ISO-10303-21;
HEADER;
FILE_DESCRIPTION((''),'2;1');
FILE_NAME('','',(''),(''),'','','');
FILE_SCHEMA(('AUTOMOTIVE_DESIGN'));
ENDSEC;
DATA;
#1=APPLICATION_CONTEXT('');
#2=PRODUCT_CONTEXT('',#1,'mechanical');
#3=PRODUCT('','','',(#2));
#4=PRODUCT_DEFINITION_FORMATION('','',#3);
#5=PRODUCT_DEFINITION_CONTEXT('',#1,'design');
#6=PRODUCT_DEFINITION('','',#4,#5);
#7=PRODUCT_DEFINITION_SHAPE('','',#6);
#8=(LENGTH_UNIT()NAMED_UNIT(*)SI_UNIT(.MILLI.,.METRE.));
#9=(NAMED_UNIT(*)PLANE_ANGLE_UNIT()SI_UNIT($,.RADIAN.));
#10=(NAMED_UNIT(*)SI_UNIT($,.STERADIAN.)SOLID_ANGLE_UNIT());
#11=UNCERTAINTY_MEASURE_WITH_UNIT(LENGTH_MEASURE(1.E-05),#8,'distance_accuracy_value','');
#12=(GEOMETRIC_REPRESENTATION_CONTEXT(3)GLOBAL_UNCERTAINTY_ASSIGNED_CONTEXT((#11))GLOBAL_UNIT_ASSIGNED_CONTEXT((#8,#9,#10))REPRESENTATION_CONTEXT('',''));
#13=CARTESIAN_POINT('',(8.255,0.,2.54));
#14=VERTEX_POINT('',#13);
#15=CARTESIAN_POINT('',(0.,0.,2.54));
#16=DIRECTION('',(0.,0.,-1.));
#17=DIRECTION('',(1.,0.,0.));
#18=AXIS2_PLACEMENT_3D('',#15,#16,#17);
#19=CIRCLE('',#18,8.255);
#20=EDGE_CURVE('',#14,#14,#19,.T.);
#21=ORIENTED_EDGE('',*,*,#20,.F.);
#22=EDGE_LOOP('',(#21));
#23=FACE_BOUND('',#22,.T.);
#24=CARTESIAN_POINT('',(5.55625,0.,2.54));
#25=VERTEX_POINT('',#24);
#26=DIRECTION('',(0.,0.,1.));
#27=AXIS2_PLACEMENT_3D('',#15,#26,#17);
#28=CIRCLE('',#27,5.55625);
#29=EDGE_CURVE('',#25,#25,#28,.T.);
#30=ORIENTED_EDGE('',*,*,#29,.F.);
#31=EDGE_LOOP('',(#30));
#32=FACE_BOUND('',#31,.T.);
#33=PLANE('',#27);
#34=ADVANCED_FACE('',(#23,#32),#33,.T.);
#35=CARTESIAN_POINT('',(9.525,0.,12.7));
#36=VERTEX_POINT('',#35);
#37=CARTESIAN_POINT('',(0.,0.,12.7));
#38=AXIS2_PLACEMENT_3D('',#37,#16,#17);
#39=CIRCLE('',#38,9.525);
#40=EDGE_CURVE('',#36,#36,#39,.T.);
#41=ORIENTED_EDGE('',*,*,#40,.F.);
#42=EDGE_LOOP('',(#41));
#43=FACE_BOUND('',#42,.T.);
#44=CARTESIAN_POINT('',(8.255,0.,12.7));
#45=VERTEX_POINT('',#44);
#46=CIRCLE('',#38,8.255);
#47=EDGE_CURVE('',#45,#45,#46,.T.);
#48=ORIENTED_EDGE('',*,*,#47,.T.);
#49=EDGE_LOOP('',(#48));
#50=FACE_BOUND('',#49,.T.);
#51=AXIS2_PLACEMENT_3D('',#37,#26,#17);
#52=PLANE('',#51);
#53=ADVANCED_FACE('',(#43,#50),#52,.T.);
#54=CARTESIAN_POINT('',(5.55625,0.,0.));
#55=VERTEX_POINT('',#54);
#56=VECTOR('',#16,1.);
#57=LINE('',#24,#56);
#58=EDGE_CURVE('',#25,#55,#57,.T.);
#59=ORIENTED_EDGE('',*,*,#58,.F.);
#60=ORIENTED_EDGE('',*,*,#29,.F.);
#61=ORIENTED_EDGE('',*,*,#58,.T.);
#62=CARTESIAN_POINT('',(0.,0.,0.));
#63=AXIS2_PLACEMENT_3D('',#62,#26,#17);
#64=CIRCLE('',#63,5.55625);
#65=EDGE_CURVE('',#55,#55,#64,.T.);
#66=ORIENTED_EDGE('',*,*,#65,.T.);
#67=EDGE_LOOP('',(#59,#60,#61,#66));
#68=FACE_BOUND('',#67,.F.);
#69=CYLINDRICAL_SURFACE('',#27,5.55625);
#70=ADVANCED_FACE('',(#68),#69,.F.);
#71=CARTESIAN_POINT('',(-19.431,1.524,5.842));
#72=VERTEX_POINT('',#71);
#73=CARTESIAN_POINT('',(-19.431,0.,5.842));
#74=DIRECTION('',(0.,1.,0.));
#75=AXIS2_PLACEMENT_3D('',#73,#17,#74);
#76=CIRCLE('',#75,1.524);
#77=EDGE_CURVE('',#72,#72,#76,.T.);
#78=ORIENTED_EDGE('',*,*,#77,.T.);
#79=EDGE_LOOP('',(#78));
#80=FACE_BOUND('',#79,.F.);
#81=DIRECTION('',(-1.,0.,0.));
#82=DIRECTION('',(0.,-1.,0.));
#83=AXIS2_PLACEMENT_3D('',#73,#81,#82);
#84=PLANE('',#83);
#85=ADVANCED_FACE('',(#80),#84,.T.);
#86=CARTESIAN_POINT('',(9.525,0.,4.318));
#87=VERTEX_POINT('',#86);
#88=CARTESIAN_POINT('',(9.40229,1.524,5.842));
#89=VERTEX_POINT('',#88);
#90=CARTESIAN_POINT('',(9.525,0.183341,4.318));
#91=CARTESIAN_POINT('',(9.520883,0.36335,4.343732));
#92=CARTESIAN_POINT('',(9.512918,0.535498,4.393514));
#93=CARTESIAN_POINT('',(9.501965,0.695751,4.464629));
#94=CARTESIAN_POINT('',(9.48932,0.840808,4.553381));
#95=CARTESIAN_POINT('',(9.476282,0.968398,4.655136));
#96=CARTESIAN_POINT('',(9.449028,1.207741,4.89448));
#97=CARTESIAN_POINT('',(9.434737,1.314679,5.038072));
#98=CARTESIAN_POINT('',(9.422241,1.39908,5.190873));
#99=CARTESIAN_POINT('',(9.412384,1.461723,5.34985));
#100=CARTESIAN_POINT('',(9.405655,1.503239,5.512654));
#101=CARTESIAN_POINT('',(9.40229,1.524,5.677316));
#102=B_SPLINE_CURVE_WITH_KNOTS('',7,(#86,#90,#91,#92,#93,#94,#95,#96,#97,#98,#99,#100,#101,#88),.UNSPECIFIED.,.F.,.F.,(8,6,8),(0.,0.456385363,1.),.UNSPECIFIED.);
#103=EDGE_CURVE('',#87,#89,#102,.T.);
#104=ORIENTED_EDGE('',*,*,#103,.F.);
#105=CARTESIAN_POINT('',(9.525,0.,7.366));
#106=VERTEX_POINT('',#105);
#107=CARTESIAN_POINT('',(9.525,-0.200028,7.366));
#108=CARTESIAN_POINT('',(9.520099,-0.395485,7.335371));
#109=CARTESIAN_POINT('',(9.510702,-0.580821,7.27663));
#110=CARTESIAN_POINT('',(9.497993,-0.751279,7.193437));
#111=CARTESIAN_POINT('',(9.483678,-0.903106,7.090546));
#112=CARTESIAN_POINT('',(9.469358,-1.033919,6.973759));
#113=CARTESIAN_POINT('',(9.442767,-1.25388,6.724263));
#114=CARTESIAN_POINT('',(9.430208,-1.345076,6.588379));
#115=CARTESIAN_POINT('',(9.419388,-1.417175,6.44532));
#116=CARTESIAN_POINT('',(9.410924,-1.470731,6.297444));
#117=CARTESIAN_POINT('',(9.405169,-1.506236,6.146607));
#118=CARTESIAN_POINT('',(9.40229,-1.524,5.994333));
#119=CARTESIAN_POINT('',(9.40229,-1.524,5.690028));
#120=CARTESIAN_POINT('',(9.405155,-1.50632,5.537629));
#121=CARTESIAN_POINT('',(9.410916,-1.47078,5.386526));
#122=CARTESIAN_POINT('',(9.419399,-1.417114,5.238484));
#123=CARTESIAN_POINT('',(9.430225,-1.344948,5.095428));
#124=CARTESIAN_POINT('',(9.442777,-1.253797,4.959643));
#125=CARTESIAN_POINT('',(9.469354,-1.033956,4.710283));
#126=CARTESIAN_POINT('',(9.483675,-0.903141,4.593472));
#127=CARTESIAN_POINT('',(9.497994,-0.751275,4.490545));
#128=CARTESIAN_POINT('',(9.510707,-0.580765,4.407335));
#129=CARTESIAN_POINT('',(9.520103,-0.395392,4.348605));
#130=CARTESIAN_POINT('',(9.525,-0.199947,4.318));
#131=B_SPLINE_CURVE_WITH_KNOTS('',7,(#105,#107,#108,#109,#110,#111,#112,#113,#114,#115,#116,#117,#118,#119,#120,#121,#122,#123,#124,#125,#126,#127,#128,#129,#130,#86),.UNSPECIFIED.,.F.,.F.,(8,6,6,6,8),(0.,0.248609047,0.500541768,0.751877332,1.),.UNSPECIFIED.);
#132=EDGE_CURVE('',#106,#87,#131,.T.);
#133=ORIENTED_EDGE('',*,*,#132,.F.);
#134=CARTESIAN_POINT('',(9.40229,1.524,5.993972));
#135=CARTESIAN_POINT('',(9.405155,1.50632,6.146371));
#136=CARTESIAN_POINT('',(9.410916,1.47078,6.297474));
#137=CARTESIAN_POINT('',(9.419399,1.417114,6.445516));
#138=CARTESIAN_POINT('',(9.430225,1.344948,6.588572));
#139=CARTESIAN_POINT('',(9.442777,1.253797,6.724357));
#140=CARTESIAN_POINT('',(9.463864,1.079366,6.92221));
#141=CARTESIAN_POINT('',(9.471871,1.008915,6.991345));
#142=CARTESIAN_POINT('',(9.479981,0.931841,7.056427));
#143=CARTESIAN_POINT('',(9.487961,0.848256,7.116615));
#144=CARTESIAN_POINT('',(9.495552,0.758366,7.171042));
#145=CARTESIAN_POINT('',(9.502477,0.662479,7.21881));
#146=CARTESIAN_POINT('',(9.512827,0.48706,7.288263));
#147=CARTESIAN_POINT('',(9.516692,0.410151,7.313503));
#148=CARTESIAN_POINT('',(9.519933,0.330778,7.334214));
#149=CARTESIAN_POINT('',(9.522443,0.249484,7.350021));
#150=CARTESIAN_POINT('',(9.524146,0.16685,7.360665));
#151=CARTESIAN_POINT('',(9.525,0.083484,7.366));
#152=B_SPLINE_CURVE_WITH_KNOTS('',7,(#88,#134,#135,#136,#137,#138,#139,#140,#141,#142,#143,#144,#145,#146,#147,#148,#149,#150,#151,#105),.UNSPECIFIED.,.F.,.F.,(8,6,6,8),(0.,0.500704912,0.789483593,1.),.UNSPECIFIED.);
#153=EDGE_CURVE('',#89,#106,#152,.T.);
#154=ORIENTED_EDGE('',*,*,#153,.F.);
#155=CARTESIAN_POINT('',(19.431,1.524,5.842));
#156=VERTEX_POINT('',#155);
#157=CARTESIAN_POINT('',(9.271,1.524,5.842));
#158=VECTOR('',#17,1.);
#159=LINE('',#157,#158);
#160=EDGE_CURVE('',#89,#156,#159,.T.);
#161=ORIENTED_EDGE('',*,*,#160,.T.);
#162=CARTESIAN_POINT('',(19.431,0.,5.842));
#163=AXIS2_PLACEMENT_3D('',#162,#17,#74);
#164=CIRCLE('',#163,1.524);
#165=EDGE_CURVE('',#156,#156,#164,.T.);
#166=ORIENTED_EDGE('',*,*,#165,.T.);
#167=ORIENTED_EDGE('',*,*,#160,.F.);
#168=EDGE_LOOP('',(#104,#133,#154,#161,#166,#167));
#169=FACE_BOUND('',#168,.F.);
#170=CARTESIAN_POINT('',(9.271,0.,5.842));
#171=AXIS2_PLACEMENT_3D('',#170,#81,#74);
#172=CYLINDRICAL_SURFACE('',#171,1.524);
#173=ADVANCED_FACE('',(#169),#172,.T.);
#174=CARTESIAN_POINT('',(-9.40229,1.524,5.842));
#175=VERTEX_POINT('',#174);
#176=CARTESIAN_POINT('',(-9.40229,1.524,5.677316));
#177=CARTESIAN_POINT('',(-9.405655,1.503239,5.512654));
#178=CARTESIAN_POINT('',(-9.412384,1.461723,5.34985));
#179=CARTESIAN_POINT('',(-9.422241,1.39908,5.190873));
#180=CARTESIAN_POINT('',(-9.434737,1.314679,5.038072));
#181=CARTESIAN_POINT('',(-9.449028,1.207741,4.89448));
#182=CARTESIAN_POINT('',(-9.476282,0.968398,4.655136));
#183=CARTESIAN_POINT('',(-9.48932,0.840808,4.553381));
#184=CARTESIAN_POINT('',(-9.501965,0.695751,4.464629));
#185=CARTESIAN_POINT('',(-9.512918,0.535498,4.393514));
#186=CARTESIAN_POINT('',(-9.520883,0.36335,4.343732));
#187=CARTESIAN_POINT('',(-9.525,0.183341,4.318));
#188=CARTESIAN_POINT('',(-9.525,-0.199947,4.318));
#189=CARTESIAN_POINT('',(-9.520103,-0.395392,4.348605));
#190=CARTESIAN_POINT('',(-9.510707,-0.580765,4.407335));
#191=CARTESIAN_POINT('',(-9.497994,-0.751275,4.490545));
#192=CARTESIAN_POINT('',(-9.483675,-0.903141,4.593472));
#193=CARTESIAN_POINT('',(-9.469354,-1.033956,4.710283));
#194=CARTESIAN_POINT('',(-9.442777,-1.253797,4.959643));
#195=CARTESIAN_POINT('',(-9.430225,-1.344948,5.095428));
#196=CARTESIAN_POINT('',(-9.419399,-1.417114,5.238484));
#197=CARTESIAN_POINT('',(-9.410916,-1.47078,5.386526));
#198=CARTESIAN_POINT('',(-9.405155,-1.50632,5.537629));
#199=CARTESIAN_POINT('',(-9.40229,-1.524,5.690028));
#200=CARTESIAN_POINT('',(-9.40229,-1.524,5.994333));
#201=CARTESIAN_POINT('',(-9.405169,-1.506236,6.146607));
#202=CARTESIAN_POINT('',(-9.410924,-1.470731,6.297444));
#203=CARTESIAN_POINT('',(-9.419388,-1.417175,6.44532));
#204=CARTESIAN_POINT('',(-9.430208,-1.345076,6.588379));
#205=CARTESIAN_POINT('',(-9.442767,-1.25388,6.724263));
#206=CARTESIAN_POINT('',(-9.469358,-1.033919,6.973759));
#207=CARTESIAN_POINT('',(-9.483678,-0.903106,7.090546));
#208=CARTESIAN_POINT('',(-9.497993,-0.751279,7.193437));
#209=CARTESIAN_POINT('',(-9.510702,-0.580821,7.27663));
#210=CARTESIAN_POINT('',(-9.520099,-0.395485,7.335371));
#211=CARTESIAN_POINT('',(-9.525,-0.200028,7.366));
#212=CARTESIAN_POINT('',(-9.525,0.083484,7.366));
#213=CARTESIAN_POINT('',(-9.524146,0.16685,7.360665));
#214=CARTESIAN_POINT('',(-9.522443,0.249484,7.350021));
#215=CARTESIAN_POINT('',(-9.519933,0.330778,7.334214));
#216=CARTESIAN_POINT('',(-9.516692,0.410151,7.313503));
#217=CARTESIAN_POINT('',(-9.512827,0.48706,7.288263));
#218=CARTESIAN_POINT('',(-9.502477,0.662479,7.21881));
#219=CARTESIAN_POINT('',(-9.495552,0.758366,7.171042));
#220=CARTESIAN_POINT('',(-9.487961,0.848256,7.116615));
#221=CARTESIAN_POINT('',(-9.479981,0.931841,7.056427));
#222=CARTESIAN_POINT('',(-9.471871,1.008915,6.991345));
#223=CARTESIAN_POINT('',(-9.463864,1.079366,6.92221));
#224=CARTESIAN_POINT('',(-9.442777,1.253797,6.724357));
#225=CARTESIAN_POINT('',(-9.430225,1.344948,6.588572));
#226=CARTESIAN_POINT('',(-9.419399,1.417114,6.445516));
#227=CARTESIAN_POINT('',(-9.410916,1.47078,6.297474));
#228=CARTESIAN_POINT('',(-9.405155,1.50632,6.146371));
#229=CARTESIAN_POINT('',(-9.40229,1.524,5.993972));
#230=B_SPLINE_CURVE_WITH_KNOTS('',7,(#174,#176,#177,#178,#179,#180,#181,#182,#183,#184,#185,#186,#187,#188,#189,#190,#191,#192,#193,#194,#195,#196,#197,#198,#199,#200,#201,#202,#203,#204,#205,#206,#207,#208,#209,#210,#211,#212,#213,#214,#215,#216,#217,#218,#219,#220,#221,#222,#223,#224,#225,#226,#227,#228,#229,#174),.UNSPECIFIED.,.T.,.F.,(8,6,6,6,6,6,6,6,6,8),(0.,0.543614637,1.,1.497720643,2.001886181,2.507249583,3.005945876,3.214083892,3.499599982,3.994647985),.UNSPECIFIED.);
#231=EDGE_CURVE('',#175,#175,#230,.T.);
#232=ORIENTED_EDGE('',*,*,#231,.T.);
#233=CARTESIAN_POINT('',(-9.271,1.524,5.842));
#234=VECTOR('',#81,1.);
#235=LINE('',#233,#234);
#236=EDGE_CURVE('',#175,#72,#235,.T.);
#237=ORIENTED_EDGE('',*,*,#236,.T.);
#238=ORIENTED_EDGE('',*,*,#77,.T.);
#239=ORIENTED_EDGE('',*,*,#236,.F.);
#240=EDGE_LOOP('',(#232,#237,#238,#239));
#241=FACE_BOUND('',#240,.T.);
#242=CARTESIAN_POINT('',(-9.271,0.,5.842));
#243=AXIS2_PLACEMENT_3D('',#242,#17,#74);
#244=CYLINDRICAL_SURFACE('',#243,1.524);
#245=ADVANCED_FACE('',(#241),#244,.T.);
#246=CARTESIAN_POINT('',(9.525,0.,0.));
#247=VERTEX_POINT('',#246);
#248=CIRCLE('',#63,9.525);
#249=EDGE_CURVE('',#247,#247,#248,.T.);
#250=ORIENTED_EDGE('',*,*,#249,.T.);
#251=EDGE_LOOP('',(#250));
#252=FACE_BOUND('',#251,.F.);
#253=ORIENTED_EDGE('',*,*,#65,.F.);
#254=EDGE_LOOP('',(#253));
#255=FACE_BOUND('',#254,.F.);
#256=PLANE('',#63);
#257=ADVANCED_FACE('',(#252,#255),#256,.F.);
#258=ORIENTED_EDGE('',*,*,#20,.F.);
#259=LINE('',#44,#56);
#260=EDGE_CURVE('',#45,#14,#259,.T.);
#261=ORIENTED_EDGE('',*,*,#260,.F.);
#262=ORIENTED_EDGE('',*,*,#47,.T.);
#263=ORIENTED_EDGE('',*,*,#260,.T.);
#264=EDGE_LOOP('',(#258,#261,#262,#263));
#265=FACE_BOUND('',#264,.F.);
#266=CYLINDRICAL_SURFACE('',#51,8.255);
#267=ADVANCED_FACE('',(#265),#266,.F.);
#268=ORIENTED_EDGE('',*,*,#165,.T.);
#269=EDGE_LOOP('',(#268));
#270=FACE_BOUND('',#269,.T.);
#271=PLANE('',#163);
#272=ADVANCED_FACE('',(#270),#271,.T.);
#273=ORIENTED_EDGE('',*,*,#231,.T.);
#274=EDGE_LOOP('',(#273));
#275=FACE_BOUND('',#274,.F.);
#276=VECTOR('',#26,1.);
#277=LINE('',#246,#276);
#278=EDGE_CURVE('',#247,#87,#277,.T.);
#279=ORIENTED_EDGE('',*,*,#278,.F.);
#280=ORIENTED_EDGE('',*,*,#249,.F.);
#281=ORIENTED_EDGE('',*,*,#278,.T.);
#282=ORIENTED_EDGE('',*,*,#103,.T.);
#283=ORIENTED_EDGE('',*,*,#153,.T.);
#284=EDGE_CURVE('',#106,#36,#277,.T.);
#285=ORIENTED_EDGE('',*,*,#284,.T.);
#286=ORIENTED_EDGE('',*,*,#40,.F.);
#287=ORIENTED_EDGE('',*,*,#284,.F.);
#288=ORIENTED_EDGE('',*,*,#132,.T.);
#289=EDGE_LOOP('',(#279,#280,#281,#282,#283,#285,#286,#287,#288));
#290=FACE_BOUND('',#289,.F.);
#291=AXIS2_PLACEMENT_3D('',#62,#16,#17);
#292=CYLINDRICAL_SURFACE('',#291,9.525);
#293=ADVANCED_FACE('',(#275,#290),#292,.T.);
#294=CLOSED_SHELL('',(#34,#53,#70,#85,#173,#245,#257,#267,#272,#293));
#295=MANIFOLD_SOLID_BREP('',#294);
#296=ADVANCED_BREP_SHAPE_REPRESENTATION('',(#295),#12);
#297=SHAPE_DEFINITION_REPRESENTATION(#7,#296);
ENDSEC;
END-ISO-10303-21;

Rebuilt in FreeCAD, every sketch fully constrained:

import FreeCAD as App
import Part
import Sketcher
from FreeCAD import Vector
Q = App.Units.Quantity

doc = App.newDocument("Part")
params = doc.addObject("Spreadsheet::Sheet", "Params")
for row, (alias, value) in enumerate([
    ("sketch1_diameter", "0.75 in"),
    ("pad1_length", "0.5 in"),
    ("sketch2_diameter", "0.65 in"),
    ("pocket1_length", "0.4 in"),
    ("sketch3_diameter", "0.4375 in"),
    ("pocket2_length", "1 in"),
    ("sketch4_diameter", "0.12 in"),
    ("pad2_length", "0.4 in"),
], start=1):
    params.set(f"A{row}", alias)
    params.set(f"B{row}", "=" + value)
    params.setAlias(f"B{row}", alias)

body = doc.addObject("PartDesign::Body", "Body")

sketch1 = body.newObject("Sketcher::SketchObject", "Sketch")
sketch1.AttachmentSupport = (doc.getObject("XY_Plane"), [""])
sketch1.MapMode = "FlatFace"
sketch1.addGeometry(Part.Circle(Vector(0, 0, 0), Vector(0, 0, 1), 10), False)
sketch1.addConstraint(Sketcher.Constraint("Coincident", 0, 3, -1, 1))
sketch1.addConstraint(Sketcher.Constraint("Diameter", 0, Q("0.75 in")))
sketch1.setExpression("Constraints[1]", "Params.sketch1_diameter")
pad1 = body.newObject("PartDesign::Pad", "Pad")
pad1.Profile = sketch1
pad1.setExpression("Length", "Params.pad1_length")

sketch2 = body.newObject("Sketcher::SketchObject", "Sketch001")
sketch2.AttachmentSupport = (doc.getObject("XY_Plane"), [""])
sketch2.MapMode = "FlatFace"
sketch2.AttachmentOffset = App.Placement(Vector(0, 0, 0.5 * 25.4), App.Rotation())
sketch2.addGeometry(Part.Circle(Vector(0, 0, 0), Vector(0, 0, 1), 8), False)
sketch2.addConstraint(Sketcher.Constraint("Coincident", 0, 3, -1, 1))
sketch2.addConstraint(Sketcher.Constraint("Diameter", 0, Q("0.65 in")))
sketch2.setExpression("Constraints[1]", "Params.sketch2_diameter")
pocket1 = body.newObject("PartDesign::Pocket", "Pocket")
pocket1.Profile = sketch2
pocket1.setExpression("Length", "Params.pocket1_length")

sketch3 = body.newObject("Sketcher::SketchObject", "Sketch002")
sketch3.AttachmentSupport = (doc.getObject("XY_Plane"), [""])
sketch3.MapMode = "FlatFace"
sketch3.AttachmentOffset = App.Placement(Vector(0, 0, 0.1 * 25.4), App.Rotation())
sketch3.addGeometry(Part.Circle(Vector(0, 0, 0), Vector(0, 0, 1), 6), False)
sketch3.addConstraint(Sketcher.Constraint("Coincident", 0, 3, -1, 1))
sketch3.addConstraint(Sketcher.Constraint("Diameter", 0, Q("0.4375 in")))
sketch3.setExpression("Constraints[1]", "Params.sketch3_diameter")
pocket2 = body.newObject("PartDesign::Pocket", "Pocket001")
pocket2.Profile = sketch3
pocket2.setExpression("Length", "Params.pocket2_length")

sketch4 = body.newObject("Sketcher::SketchObject", "Sketch003")
sketch4.AttachmentSupport = (doc.getObject("YZ_Plane"), [""])
sketch4.MapMode = "FlatFace"
sketch4.AttachmentOffset = App.Placement(Vector(0, 0, 0.365 * 25.4), App.Rotation())
sketch4.addGeometry(Part.Circle(Vector(0, 5.8, 0), Vector(0, 0, 1), 1.5), False)
sketch4.addConstraint(Sketcher.Constraint("PointOnObject", 0, 3, -2))
sketch4.addConstraint(Sketcher.Constraint("Diameter", 0, Q("0.12 in")))
sketch4.addConstraint(Sketcher.Constraint("DistanceY", -1, 1, 0, 3, Q("0.23 in")))
sketch4.setExpression("Constraints[1]", "Params.sketch4_diameter")
pad2 = body.newObject("PartDesign::Pad", "Pad001")
pad2.Profile = sketch4
pad2.setExpression("Length", "Params.pad2_length")
body2 = doc.addObject("PartDesign::Body", "Body001")
doc.recompute()

body2.BaseFeature = body
doc.recompute()

mirroring = doc.addObject("Part::Mirroring", "Mirroring")
mirroring.Source = body
mirroring.Base = Vector(0, 0, 0)
mirroring.Normal = Vector(1, 0, 0)
body3 = doc.addObject("PartDesign::Body", "Body002")
body3.BaseFeature = mirroring
boolean = body2.newObject("PartDesign::Boolean", "Boolean")
boolean.Type = "Fuse"
boolean.addObjects([body3])
doc.recompute()
mirroring.Visibility = False

doc.recompute()
